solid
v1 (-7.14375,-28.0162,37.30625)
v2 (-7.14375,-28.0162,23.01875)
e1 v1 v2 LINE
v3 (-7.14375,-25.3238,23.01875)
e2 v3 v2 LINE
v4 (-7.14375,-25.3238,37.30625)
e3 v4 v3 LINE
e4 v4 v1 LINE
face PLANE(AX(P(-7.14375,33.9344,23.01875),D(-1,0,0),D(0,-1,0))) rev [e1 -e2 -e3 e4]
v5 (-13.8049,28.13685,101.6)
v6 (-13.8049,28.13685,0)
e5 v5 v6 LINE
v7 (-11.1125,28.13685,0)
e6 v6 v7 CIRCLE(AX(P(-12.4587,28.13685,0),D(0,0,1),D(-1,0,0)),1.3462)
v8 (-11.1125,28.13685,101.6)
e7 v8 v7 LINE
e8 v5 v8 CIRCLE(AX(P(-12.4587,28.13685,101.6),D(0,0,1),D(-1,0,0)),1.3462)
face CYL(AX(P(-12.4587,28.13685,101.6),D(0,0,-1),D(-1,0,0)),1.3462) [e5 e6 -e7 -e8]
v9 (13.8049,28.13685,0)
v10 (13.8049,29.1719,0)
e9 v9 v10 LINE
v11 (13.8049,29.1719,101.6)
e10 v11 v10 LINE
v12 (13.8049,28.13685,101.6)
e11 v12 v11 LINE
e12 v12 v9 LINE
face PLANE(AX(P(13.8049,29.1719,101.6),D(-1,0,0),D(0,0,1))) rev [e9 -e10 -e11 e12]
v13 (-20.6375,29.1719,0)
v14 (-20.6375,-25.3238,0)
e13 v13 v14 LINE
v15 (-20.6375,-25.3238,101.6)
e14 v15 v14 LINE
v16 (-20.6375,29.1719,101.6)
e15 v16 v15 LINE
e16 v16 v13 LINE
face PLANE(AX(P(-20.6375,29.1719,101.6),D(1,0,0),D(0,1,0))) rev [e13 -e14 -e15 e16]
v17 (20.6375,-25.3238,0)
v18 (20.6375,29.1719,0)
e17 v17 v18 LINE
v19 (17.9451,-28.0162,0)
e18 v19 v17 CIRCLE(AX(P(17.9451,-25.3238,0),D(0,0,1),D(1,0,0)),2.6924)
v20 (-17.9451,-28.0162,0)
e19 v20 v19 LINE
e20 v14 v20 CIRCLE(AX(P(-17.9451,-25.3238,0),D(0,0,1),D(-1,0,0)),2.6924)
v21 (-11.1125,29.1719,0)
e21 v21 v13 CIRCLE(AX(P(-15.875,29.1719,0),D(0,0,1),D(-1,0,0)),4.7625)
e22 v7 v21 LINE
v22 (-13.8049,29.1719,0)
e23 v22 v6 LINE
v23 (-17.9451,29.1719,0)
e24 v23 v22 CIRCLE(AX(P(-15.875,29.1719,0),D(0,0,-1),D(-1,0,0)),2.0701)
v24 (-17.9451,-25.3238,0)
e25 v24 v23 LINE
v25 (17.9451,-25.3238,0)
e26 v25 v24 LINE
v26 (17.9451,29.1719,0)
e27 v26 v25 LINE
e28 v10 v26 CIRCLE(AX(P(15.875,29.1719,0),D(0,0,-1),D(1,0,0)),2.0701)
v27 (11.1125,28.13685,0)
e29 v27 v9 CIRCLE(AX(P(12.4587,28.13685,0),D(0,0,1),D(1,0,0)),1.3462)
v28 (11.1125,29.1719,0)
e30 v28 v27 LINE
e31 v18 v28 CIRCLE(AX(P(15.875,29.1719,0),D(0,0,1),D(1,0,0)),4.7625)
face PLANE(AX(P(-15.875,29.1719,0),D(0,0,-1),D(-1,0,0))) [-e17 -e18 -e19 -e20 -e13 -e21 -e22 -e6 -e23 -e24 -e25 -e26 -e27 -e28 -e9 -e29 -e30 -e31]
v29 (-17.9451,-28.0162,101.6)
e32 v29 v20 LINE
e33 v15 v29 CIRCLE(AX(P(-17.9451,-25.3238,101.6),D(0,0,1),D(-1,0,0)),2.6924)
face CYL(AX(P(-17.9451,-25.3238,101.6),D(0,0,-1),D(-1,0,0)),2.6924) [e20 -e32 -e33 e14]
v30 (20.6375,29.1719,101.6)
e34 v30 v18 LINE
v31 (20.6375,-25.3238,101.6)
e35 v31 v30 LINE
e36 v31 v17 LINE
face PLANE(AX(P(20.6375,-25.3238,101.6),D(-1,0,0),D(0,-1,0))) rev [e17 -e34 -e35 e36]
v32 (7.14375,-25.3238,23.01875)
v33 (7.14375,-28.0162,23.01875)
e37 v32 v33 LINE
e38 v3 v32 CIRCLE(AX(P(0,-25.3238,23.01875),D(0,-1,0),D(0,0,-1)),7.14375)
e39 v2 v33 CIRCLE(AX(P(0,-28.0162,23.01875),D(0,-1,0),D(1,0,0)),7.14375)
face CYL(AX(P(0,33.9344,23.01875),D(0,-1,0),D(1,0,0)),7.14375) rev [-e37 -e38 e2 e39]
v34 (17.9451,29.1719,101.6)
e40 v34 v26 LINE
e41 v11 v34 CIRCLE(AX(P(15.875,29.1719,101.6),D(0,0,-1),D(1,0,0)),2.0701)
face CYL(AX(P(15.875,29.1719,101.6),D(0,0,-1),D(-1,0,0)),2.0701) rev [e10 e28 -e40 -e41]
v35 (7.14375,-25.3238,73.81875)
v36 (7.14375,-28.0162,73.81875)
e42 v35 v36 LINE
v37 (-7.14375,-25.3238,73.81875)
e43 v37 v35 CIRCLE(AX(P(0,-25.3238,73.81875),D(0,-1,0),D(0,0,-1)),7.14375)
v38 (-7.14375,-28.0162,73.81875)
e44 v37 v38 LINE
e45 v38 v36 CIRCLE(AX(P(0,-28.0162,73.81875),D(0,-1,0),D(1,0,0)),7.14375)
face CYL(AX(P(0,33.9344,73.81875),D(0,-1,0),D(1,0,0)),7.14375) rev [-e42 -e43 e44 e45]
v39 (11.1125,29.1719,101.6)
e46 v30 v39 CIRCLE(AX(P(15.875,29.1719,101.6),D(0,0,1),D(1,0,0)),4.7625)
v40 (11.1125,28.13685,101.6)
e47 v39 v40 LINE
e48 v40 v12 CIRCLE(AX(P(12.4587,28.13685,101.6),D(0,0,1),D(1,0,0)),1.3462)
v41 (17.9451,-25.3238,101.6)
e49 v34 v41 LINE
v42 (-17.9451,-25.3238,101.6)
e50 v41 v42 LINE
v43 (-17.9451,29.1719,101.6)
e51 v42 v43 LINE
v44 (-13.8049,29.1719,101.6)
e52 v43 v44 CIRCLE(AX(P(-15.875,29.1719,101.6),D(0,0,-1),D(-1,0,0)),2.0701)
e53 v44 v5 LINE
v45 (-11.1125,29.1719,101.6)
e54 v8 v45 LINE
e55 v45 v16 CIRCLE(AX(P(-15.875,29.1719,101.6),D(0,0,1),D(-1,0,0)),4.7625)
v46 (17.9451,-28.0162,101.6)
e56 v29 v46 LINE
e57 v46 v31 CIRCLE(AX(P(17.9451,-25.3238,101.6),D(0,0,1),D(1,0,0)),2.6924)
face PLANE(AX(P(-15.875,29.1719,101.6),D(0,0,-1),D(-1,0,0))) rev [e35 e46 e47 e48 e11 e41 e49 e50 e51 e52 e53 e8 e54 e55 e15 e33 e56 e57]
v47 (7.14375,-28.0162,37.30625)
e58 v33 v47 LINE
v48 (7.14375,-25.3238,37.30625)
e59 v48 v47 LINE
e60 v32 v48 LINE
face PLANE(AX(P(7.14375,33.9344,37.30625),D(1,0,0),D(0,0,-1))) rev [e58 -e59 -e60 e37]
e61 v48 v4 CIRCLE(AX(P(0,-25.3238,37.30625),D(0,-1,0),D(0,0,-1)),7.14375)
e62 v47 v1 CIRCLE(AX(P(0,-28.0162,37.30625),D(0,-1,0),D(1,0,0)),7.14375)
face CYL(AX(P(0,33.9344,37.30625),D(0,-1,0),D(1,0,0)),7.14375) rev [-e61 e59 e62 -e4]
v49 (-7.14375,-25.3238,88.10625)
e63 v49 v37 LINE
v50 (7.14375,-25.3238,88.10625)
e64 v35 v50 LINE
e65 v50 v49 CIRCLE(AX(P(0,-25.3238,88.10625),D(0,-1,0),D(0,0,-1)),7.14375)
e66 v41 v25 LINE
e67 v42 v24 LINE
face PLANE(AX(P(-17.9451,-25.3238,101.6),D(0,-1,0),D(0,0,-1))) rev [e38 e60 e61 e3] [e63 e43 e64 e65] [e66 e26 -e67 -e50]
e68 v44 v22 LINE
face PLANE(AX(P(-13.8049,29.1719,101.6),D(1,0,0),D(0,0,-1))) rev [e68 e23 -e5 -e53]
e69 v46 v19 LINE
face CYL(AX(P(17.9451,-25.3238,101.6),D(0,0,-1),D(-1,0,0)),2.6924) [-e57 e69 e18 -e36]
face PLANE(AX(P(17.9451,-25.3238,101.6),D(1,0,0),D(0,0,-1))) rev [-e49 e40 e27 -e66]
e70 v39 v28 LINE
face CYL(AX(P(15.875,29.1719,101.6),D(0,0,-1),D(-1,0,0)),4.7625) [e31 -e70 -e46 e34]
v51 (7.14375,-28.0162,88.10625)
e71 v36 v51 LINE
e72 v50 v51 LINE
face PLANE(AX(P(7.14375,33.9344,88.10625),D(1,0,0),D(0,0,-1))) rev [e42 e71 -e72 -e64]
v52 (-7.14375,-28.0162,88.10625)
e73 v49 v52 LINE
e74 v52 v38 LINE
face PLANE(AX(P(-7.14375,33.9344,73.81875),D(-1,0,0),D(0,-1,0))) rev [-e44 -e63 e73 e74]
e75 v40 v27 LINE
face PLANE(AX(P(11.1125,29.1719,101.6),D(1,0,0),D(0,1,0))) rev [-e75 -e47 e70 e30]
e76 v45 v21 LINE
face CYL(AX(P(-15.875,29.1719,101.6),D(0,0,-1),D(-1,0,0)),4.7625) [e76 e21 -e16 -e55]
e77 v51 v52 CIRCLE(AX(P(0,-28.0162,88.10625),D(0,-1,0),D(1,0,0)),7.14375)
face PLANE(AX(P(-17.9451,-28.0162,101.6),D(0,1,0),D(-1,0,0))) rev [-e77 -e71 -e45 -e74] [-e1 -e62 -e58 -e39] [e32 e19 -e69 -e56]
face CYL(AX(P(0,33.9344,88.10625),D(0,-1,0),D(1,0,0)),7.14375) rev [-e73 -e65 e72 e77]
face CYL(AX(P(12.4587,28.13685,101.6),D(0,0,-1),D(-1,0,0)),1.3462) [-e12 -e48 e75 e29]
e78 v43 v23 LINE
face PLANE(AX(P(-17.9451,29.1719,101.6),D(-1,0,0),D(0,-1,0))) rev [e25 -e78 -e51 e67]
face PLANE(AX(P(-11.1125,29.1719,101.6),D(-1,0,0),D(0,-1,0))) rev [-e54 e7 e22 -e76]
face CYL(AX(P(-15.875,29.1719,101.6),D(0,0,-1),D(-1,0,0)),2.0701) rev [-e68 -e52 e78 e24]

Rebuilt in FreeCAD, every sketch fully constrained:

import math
import FreeCAD as App
import Part
import Sketcher
from FreeCAD import Vector
Q = App.Units.Quantity

doc = App.newDocument("Part")
body = doc.addObject("PartDesign::Body", "Body")

# Sketch on XY plane
sketch1 = body.newObject("Sketcher::SketchObject", "Sketch")
sketch1.AttachmentSupport = (doc.getObject("XY_Plane"), [""])
sketch1.MapMode = "FlatFace"
sketch1.addGeometry([
    Part.LineSegment(Vector(-20.6, 29.2, 0), Vector(-20.6, -25.3, 0)),  # 0
    Part.ArcOfCircle(Part.Circle(Vector(-17.9, -25.3, 0), Vector(0, 0, 1), 2.7), math.radians(180), math.radians(270)),  # 1
    Part.LineSegment(Vector(-17.9, -28, 0), Vector(17.9, -28, 0)),  # 2
    Part.ArcOfCircle(Part.Circle(Vector(17.9, -25.3, 0), Vector(0, 0, 1), 2.7), math.radians(-90), math.radians(0)),  # 3
    Part.LineSegment(Vector(20.6, -25.3, 0), Vector(20.6, 29.2, 0)),  # 4
    Part.ArcOfCircle(Part.Circle(Vector(15.9, 29.2, 0), Vector(0, 0, 1), 4.8), math.radians(0), math.radians(180)),  # 5
    Part.LineSegment(Vector(11.1, 29.2, 0), Vector(11.1, 28.1, 0)),  # 6
    Part.ArcOfCircle(Part.Circle(Vector(12.5, 28.1, 0), Vector(0, 0, 1), 1.3), math.radians(180), math.radians(360)),  # 7
    Part.LineSegment(Vector(13.8, 28.1, 0), Vector(13.8, 29.2, 0)),  # 8
    Part.ArcOfCircle(Part.Circle(Vector(15.9, 29.2, 0), Vector(0, 0, 1), 2.1), math.radians(0), math.radians(180)),  # 9
    Part.LineSegment(Vector(17.9, 29.2, 0), Vector(17.9, -25.3, 0)),  # 10
    Part.LineSegment(Vector(17.9, -25.3, 0), Vector(-17.9, -25.3, 0)),  # 11
    Part.LineSegment(Vector(-17.9, -25.3, 0), Vector(-17.9, 29.2, 0)),  # 12
    Part.ArcOfCircle(Part.Circle(Vector(-15.9, 29.2, 0), Vector(0, 0, 1), 2.1), math.radians(0), math.radians(180)),  # 13
    Part.LineSegment(Vector(-13.8, 29.2, 0), Vector(-13.8, 28.1, 0)),  # 14
    Part.ArcOfCircle(Part.Circle(Vector(-12.5, 28.1, 0), Vector(0, 0, 1), 1.3), math.radians(180), math.radians(360)),  # 15
    Part.LineSegment(Vector(-11.1, 28.1, 0), Vector(-11.1, 29.2, 0)),  # 16
    Part.ArcOfCircle(Part.Circle(Vector(-15.9, 29.2, 0), Vector(0, 0, 1), 4.8), math.radians(0), math.radians(180)),  # 17
], False)
sketch1.addConstraint([
    Sketcher.Constraint("Tangent", 0, 2, 1, 1),
    Sketcher.Constraint("Tangent", 1, 2, 2, 1),
    Sketcher.Constraint("Tangent", 2, 2, 3, 1),
    Sketcher.Constraint("Tangent", 3, 2, 4, 1),
    Sketcher.Constraint("Tangent", 4, 2, 5, 1),
    Sketcher.Constraint("Tangent", 5, 2, 6, 1),
    Sketcher.Constraint("Tangent", 6, 2, 7, 1),
    Sketcher.Constraint("Tangent", 7, 2, 8, 1),
    Sketcher.Constraint("Tangent", 8, 2, 9, 2),
    Sketcher.Constraint("Tangent", 9, 1, 10, 1),
    Sketcher.Constraint("Coincident", 10, 2, 11, 1),
    Sketcher.Constraint("Coincident", 11, 2, 12, 1),
    Sketcher.Constraint("Tangent", 12, 2, 13, 2),
    Sketcher.Constraint("Tangent", 13, 1, 14, 1),
    Sketcher.Constraint("Tangent", 14, 2, 15, 1),
    Sketcher.Constraint("Tangent", 15, 2, 16, 1),
    Sketcher.Constraint("Tangent", 16, 2, 17, 1),
    Sketcher.Constraint("Tangent", 17, 2, 0, 1),
    Sketcher.Constraint("Vertical", 0),
    Sketcher.Constraint("Horizontal", 2),
    Sketcher.Constraint("Vertical", 4),
    Sketcher.Constraint("Vertical", 6),
    Sketcher.Constraint("Vertical", 8),
    Sketcher.Constraint("Vertical", 10),
    Sketcher.Constraint("Horizontal", 11),
    Sketcher.Constraint("Vertical", 12),
    Sketcher.Constraint("Vertical", 14),
    Sketcher.Constraint("Vertical", 16),
    Sketcher.Constraint("Coincident", 9, 3, 5, 3),
    Sketcher.Constraint("Coincident", 17, 3, 13, 3),
    Sketcher.Constraint("Coincident", 10, 2, 3, 3),
    Sketcher.Constraint("Coincident", 11, 2, 1, 3),
    Sketcher.Constraint("Equal", 9, 13),
    Sketcher.Constraint("Symmetric", 5, 3, 13, 3, -2),
    Sketcher.Constraint("Horizontal", 7, 3, 15, 3),
    Sketcher.Constraint("Radius", 1, Q("0.106 in")),
    Sketcher.Constraint("Radius", 5, Q("0.1875 in")),
    Sketcher.Constraint("DistanceX", 2, 1, 2, 2, Q("1.413 in")),
    Sketcher.Constraint("DistanceY", 0, 2, 0, 1, Q("2.1455 in")),
    Sketcher.Constraint("DistanceY", 1, 3, -1, 1, Q("0.997 in")),
    Sketcher.Constraint("DistanceY", 6, 2, 6, 1, 1.03505),
])
pad1 = body.newObject("PartDesign::Pad", "Pad")
pad1.Profile = sketch1
pad1.Length = Q("4 in")

# Sketch on XZ plane
sketch2 = body.newObject("Sketcher::SketchObject", "Sketch001")
sketch2.AttachmentSupport = (doc.getObject("XZ_Plane"), [""])
sketch2.MapMode = "FlatFace"
sketch2.AttachmentOffset = App.Placement(Vector(0, 0, 1.103 * 25.4), App.Rotation())
sketch2.addGeometry([
    Part.LineSegment(Vector(7, 23, 0), Vector(7, 37, 0)),
    Part.ArcOfCircle(Part.Circle(Vector(0, 37, 0), Vector(0, 0, 1), 7), math.radians(0), math.radians(180)),
    Part.LineSegment(Vector(-7, 37, 0), Vector(-7, 23, 0)),
    Part.ArcOfCircle(Part.Circle(Vector(0, 23, 0), Vector(0, 0, 1), 7), math.radians(180), math.radians(360)),
], False)
sketch2.addConstraint([
    Sketcher.Constraint("Tangent", 0, 2, 1, 1),
    Sketcher.Constraint("Tangent", 1, 2, 2, 1),
    Sketcher.Constraint("Tangent", 2, 2, 3, 1),
    Sketcher.Constraint("Tangent", 3, 2, 0, 1),
    Sketcher.Constraint("Vertical", 0),
    Sketcher.Constraint("Vertical", 2),
    Sketcher.Constraint("PointOnObject", 1, 3, -2),
    Sketcher.Constraint("Radius", 1, Q("0.28125 in")),
    Sketcher.Constraint("DistanceY", 0, 1, 0, 2, Q("0.5625 in")),
    Sketcher.Constraint("DistanceY", -1, 1, 1, 3, Q("1.46875 in")),
])
pocket1 = body.newObject("PartDesign::Pocket", "Pocket")
pocket1.Profile = sketch2
pocket1.Type = "ThroughAll"
doc.recompute()

linearpattern = body.newObject("PartDesign::LinearPattern", "LinearPattern")
linearpattern.Originals = [pocket1]
linearpattern.Direction = (doc.getObject("Z_Axis"), [""])
linearpattern.Mode = "offset"
linearpattern.Offset = Q("2 in")
linearpattern.Occurrences = 2
body.Tip = linearpattern

doc.recompute()
